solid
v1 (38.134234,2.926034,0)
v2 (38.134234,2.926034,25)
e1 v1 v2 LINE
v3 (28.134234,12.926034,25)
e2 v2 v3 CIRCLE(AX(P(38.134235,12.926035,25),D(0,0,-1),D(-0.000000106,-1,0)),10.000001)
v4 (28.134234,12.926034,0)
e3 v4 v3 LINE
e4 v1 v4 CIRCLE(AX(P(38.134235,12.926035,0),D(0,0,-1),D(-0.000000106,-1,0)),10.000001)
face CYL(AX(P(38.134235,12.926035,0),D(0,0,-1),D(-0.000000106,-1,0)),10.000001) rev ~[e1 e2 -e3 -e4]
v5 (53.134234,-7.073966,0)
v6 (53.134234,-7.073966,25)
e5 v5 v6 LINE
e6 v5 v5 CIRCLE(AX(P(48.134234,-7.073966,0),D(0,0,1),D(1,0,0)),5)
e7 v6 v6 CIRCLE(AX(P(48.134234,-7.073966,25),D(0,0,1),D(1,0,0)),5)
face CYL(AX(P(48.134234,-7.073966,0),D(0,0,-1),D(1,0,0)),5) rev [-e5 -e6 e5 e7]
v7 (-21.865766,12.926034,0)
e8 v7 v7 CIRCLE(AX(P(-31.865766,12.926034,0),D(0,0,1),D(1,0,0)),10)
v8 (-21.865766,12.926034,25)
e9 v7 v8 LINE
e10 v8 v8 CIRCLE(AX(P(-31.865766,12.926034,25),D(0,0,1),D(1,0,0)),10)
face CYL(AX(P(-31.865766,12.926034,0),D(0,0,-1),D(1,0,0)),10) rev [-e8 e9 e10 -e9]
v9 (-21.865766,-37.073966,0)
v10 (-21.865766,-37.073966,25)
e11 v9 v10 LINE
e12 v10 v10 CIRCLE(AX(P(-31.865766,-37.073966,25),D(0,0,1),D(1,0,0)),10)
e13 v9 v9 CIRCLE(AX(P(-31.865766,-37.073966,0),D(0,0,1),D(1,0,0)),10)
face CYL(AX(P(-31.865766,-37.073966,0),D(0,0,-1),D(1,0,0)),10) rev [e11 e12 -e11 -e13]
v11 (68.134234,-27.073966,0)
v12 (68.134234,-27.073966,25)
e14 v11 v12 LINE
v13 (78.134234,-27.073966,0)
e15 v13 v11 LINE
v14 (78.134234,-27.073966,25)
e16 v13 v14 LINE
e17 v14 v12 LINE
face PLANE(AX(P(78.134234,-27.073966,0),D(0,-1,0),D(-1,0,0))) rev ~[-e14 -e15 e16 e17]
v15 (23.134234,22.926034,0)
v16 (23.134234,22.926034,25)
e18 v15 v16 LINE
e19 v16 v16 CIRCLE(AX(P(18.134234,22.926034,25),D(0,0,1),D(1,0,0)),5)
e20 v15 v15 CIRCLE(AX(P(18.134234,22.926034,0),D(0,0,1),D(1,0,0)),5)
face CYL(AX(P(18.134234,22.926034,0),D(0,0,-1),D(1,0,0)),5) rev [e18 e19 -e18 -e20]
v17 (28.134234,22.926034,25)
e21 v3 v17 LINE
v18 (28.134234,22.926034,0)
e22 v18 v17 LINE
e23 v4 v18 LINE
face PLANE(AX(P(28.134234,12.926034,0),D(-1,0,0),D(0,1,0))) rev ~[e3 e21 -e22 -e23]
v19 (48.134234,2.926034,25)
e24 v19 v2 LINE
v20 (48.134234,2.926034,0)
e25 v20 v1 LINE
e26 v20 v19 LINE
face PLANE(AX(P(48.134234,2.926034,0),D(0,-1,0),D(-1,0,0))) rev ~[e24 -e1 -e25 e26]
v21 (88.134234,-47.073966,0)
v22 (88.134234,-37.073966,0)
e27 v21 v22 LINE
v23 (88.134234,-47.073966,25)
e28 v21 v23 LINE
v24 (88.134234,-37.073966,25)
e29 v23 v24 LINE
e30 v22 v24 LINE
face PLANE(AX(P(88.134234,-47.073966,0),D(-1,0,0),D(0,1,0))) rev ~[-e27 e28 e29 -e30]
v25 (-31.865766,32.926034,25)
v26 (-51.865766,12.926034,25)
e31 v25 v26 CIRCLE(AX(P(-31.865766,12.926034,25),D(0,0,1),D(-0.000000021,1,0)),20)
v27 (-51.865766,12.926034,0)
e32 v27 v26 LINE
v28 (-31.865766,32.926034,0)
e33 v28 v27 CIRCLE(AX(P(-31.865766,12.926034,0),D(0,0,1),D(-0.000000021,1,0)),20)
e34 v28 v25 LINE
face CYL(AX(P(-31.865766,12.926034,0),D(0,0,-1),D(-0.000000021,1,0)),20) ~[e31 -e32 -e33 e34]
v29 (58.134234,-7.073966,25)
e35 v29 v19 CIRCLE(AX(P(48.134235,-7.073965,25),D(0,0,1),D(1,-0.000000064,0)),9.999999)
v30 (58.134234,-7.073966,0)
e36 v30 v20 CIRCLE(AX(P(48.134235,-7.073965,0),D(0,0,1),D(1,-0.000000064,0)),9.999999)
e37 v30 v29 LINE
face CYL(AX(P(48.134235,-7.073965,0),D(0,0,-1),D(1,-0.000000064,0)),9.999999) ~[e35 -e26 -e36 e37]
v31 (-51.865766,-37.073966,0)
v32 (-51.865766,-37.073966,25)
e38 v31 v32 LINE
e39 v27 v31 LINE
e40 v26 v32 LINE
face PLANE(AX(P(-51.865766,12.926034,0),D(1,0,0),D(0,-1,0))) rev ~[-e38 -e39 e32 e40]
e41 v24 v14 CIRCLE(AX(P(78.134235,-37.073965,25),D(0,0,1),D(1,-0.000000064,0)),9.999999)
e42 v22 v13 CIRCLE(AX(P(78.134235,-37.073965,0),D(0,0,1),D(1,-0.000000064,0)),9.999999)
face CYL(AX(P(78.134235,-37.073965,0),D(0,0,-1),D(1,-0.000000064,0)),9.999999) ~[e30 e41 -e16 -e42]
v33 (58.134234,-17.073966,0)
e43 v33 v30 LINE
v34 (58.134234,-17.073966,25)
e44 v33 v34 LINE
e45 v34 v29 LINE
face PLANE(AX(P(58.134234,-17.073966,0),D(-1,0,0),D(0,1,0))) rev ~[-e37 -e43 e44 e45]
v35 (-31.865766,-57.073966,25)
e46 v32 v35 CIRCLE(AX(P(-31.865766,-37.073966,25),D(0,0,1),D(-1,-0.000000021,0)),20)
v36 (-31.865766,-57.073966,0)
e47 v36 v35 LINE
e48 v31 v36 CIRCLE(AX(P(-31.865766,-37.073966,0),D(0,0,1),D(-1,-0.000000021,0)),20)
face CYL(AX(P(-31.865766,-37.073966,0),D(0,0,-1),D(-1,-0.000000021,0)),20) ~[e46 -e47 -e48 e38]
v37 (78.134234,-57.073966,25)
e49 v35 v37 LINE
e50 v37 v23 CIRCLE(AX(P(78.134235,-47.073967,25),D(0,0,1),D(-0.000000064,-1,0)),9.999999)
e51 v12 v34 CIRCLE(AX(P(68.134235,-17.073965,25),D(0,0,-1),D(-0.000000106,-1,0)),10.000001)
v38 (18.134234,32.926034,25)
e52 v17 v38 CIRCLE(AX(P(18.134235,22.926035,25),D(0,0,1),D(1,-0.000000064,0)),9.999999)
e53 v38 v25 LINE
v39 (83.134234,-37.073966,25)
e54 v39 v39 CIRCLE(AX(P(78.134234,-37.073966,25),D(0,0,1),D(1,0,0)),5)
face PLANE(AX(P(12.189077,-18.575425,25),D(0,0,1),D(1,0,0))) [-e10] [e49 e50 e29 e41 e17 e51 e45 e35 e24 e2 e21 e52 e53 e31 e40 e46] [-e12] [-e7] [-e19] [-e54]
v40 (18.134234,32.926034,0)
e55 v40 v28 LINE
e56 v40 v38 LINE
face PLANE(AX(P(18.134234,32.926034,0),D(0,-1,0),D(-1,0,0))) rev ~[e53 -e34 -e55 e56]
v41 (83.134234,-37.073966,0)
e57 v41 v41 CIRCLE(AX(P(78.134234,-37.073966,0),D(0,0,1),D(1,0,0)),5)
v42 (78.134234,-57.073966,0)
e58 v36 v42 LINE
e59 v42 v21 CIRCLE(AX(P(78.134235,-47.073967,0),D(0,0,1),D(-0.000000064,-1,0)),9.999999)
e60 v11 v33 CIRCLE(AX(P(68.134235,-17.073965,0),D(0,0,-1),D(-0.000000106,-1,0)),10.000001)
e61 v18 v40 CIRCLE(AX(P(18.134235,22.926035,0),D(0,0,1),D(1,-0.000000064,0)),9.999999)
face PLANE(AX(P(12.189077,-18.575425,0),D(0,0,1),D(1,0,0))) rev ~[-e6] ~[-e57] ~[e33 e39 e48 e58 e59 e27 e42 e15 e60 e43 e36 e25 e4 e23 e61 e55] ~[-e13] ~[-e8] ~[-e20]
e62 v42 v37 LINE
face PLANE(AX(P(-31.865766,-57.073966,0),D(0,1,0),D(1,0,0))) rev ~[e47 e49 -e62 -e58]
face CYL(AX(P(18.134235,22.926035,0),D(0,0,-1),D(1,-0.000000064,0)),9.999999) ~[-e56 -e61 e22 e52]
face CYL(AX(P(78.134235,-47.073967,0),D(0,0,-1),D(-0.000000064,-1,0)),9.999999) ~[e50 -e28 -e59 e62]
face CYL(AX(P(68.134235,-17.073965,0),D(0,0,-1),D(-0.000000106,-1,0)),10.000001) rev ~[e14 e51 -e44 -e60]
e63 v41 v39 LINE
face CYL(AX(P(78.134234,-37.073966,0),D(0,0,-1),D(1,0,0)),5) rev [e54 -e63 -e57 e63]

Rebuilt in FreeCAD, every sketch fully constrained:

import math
import FreeCAD as App
import Part
import Sketcher
from FreeCAD import Vector
Q = App.Units.Quantity

doc = App.newDocument("Part")
body = doc.addObject("PartDesign::Body", "Body")

# Sketch on XY plane
sketch1 = body.newObject("Sketcher::SketchObject", "Sketch")
sketch1.AttachmentSupport = (doc.getObject("XY_Plane"), [""])
sketch1.MapMode = "FlatFace"
sketch1.addGeometry([
    Part.ArcOfCircle(Part.Circle(Vector(-31.865766, -37.073966, 0), Vector(0, 0, 1), 20), math.radians(-179.999999), math.radians(-90.000001)),  # 0
    Part.LineSegment(Vector(-31.865766, -57.073966, 0), Vector(78.134234, -57.073966, 0)),  # 1
    Part.ArcOfCircle(Part.Circle(Vector(78.134235, -47.073967, 0), Vector(0, 0, 1), 9.999999), math.radians(-90.000004), math.radians(0.000004)),  # 2
    Part.LineSegment(Vector(88.134234, -47.073966, 0), Vector(88.134234, -37.073966, 0)),  # 3
    Part.ArcOfCircle(Part.Circle(Vector(78.134235, -37.073965, 0), Vector(0, 0, 1), 9.999999), math.radians(-0.000004), math.radians(90.000004)),  # 4
    Part.LineSegment(Vector(78.134234, -27.073966, 0), Vector(68.134234, -27.073966, 0)),  # 5
    Part.ArcOfCircle(Part.Circle(Vector(68.134235, -17.073965, 0), Vector(0, 0, 1), 10.000001), math.radians(-179.999994), math.radians(-90.000006)),  # 6
    Part.LineSegment(Vector(58.134234, -17.073966, 0), Vector(58.134234, -7.073966, 0)),  # 7
    Part.ArcOfCircle(Part.Circle(Vector(48.134235, -7.073965, 0), Vector(0, 0, 1), 9.999999), math.radians(-0.000004), math.radians(90.000004)),  # 8
    Part.LineSegment(Vector(48.134234, 2.926034, 0), Vector(38.134234, 2.926034, 0)),  # 9
    Part.ArcOfCircle(Part.Circle(Vector(38.134235, 12.926035, 0), Vector(0, 0, 1), 10.000001), math.radians(-179.999994), math.radians(-90.000006)),  # 10
    Part.LineSegment(Vector(28.134234, 12.926034, 0), Vector(28.134234, 22.926034, 0)),  # 11
    Part.ArcOfCircle(Part.Circle(Vector(18.134235, 22.926035, 0), Vector(0, 0, 1), 9.999999), math.radians(-0.000004), math.radians(90.000004)),  # 12
    Part.LineSegment(Vector(18.134234, 32.926034, 0), Vector(-31.865766, 32.926034, 0)),  # 13
    Part.ArcOfCircle(Part.Circle(Vector(-31.865766, 12.926034, 0), Vector(0, 0, 1), 20), math.radians(90.000001), math.radians(179.999999)),  # 14
    Part.LineSegment(Vector(-51.865766, 12.926034, 0), Vector(-51.865766, -37.073966, 0)),  # 15
    Part.Circle(Vector(-31.865766, -37.073966, 0), Vector(0, 0, 1), 10),  # 16
    Part.Circle(Vector(78.134234, -37.073966, 0), Vector(0, 0, 1), 5),  # 17
    Part.Circle(Vector(-31.865766, 12.926034, 0), Vector(0, 0, 1), 10),  # 18
    Part.Circle(Vector(18.134234, 22.926034, 0), Vector(0, 0, 1), 5),  # 19
    Part.Circle(Vector(48.134234, -7.073966, 0), Vector(0, 0, 1), 5),  # 20
], False)
sketch1.addConstraint([
    Sketcher.Constraint("Tangent", 0, 2, 1, 1),
    Sketcher.Constraint("Tangent", 1, 2, 2, 1),
    Sketcher.Constraint("Tangent", 2, 2, 3, 1),
    Sketcher.Constraint("Tangent", 3, 2, 4, 1),
    Sketcher.Constraint("Tangent", 4, 2, 5, 1),
    Sketcher.Constraint("Tangent", 5, 2, 6, 2),
    Sketcher.Constraint("Tangent", 6, 1, 7, 1),
    Sketcher.Constraint("Tangent", 7, 2, 8, 1),
    Sketcher.Constraint("Tangent", 8, 2, 9, 1),
    Sketcher.Constraint("Tangent", 9, 2, 10, 2),
    Sketcher.Constraint("Tangent", 10, 1, 11, 1),
    Sketcher.Constraint("Tangent", 11, 2, 12, 1),
    Sketcher.Constraint("Tangent", 12, 2, 13, 1),
    Sketcher.Constraint("Tangent", 13, 2, 14, 1),
    Sketcher.Constraint("Tangent", 14, 2, 15, 1),
    Sketcher.Constraint("Tangent", 15, 2, 0, 1),
    Sketcher.Constraint("Horizontal", 1),
    Sketcher.Constraint("Vertical", 3),
    Sketcher.Constraint("Horizontal", 5),
    Sketcher.Constraint("Vertical", 7),
    Sketcher.Constraint("Horizontal", 9),
    Sketcher.Constraint("Vertical", 11),
    Sketcher.Constraint("Horizontal", 13),
    Sketcher.Constraint("Vertical", 15),
    Sketcher.Constraint("Coincident", 16, 3, 0, 3),
    Sketcher.Constraint("Coincident", 17, 3, 4, 3),
    Sketcher.Constraint("Coincident", 18, 3, 14, 3),
    Sketcher.Constraint("Coincident", 19, 3, 12, 3),
    Sketcher.Constraint("Coincident", 20, 3, 8, 3),
    Sketcher.Constraint("Equal", 2, 4),
    Sketcher.Constraint("Equal", 4, 6),
    Sketcher.Constraint("Equal", 6, 8),
    Sketcher.Constraint("Equal", 8, 10),
    Sketcher.Constraint("Equal", 10, 12),
    Sketcher.Constraint("Equal", 0, 14),
    Sketcher.Constraint("Equal", 12, 16),
    Sketcher.Constraint("Equal", 16, 18),
    Sketcher.Constraint("Equal", 17, 19),
    Sketcher.Constraint("Equal", 19, 20),
    Sketcher.Constraint("Horizontal", 0, 3, 4, 3),
    Sketcher.Constraint("Horizontal", 10, 3, 14, 3),
    Sketcher.Constraint("Equal", 5, 9),
    Sketcher.Constraint("Equal", 9, 3),
    Sketcher.Constraint("Equal", 3, 7),
    Sketcher.Constraint("Equal", 13, 15),
    Sketcher.Constraint("Diameter", 16, Q("20 mm")),
    Sketcher.Constraint("Diameter", 17, Q("10 mm")),
    Sketcher.Constraint("Radius", 0, Q("20 mm")),
    Sketcher.Constraint("DistanceX", 0, 3, -1, 1, Q("31.865766 mm")),
    Sketcher.Constraint("DistanceY", 0, 3, -1, 1, Q("37.073966 mm")),
])
pad1 = body.newObject("PartDesign::Pad", "Pad")
pad1.Profile = sketch1
pad1.Length = 25

doc.recompute()
